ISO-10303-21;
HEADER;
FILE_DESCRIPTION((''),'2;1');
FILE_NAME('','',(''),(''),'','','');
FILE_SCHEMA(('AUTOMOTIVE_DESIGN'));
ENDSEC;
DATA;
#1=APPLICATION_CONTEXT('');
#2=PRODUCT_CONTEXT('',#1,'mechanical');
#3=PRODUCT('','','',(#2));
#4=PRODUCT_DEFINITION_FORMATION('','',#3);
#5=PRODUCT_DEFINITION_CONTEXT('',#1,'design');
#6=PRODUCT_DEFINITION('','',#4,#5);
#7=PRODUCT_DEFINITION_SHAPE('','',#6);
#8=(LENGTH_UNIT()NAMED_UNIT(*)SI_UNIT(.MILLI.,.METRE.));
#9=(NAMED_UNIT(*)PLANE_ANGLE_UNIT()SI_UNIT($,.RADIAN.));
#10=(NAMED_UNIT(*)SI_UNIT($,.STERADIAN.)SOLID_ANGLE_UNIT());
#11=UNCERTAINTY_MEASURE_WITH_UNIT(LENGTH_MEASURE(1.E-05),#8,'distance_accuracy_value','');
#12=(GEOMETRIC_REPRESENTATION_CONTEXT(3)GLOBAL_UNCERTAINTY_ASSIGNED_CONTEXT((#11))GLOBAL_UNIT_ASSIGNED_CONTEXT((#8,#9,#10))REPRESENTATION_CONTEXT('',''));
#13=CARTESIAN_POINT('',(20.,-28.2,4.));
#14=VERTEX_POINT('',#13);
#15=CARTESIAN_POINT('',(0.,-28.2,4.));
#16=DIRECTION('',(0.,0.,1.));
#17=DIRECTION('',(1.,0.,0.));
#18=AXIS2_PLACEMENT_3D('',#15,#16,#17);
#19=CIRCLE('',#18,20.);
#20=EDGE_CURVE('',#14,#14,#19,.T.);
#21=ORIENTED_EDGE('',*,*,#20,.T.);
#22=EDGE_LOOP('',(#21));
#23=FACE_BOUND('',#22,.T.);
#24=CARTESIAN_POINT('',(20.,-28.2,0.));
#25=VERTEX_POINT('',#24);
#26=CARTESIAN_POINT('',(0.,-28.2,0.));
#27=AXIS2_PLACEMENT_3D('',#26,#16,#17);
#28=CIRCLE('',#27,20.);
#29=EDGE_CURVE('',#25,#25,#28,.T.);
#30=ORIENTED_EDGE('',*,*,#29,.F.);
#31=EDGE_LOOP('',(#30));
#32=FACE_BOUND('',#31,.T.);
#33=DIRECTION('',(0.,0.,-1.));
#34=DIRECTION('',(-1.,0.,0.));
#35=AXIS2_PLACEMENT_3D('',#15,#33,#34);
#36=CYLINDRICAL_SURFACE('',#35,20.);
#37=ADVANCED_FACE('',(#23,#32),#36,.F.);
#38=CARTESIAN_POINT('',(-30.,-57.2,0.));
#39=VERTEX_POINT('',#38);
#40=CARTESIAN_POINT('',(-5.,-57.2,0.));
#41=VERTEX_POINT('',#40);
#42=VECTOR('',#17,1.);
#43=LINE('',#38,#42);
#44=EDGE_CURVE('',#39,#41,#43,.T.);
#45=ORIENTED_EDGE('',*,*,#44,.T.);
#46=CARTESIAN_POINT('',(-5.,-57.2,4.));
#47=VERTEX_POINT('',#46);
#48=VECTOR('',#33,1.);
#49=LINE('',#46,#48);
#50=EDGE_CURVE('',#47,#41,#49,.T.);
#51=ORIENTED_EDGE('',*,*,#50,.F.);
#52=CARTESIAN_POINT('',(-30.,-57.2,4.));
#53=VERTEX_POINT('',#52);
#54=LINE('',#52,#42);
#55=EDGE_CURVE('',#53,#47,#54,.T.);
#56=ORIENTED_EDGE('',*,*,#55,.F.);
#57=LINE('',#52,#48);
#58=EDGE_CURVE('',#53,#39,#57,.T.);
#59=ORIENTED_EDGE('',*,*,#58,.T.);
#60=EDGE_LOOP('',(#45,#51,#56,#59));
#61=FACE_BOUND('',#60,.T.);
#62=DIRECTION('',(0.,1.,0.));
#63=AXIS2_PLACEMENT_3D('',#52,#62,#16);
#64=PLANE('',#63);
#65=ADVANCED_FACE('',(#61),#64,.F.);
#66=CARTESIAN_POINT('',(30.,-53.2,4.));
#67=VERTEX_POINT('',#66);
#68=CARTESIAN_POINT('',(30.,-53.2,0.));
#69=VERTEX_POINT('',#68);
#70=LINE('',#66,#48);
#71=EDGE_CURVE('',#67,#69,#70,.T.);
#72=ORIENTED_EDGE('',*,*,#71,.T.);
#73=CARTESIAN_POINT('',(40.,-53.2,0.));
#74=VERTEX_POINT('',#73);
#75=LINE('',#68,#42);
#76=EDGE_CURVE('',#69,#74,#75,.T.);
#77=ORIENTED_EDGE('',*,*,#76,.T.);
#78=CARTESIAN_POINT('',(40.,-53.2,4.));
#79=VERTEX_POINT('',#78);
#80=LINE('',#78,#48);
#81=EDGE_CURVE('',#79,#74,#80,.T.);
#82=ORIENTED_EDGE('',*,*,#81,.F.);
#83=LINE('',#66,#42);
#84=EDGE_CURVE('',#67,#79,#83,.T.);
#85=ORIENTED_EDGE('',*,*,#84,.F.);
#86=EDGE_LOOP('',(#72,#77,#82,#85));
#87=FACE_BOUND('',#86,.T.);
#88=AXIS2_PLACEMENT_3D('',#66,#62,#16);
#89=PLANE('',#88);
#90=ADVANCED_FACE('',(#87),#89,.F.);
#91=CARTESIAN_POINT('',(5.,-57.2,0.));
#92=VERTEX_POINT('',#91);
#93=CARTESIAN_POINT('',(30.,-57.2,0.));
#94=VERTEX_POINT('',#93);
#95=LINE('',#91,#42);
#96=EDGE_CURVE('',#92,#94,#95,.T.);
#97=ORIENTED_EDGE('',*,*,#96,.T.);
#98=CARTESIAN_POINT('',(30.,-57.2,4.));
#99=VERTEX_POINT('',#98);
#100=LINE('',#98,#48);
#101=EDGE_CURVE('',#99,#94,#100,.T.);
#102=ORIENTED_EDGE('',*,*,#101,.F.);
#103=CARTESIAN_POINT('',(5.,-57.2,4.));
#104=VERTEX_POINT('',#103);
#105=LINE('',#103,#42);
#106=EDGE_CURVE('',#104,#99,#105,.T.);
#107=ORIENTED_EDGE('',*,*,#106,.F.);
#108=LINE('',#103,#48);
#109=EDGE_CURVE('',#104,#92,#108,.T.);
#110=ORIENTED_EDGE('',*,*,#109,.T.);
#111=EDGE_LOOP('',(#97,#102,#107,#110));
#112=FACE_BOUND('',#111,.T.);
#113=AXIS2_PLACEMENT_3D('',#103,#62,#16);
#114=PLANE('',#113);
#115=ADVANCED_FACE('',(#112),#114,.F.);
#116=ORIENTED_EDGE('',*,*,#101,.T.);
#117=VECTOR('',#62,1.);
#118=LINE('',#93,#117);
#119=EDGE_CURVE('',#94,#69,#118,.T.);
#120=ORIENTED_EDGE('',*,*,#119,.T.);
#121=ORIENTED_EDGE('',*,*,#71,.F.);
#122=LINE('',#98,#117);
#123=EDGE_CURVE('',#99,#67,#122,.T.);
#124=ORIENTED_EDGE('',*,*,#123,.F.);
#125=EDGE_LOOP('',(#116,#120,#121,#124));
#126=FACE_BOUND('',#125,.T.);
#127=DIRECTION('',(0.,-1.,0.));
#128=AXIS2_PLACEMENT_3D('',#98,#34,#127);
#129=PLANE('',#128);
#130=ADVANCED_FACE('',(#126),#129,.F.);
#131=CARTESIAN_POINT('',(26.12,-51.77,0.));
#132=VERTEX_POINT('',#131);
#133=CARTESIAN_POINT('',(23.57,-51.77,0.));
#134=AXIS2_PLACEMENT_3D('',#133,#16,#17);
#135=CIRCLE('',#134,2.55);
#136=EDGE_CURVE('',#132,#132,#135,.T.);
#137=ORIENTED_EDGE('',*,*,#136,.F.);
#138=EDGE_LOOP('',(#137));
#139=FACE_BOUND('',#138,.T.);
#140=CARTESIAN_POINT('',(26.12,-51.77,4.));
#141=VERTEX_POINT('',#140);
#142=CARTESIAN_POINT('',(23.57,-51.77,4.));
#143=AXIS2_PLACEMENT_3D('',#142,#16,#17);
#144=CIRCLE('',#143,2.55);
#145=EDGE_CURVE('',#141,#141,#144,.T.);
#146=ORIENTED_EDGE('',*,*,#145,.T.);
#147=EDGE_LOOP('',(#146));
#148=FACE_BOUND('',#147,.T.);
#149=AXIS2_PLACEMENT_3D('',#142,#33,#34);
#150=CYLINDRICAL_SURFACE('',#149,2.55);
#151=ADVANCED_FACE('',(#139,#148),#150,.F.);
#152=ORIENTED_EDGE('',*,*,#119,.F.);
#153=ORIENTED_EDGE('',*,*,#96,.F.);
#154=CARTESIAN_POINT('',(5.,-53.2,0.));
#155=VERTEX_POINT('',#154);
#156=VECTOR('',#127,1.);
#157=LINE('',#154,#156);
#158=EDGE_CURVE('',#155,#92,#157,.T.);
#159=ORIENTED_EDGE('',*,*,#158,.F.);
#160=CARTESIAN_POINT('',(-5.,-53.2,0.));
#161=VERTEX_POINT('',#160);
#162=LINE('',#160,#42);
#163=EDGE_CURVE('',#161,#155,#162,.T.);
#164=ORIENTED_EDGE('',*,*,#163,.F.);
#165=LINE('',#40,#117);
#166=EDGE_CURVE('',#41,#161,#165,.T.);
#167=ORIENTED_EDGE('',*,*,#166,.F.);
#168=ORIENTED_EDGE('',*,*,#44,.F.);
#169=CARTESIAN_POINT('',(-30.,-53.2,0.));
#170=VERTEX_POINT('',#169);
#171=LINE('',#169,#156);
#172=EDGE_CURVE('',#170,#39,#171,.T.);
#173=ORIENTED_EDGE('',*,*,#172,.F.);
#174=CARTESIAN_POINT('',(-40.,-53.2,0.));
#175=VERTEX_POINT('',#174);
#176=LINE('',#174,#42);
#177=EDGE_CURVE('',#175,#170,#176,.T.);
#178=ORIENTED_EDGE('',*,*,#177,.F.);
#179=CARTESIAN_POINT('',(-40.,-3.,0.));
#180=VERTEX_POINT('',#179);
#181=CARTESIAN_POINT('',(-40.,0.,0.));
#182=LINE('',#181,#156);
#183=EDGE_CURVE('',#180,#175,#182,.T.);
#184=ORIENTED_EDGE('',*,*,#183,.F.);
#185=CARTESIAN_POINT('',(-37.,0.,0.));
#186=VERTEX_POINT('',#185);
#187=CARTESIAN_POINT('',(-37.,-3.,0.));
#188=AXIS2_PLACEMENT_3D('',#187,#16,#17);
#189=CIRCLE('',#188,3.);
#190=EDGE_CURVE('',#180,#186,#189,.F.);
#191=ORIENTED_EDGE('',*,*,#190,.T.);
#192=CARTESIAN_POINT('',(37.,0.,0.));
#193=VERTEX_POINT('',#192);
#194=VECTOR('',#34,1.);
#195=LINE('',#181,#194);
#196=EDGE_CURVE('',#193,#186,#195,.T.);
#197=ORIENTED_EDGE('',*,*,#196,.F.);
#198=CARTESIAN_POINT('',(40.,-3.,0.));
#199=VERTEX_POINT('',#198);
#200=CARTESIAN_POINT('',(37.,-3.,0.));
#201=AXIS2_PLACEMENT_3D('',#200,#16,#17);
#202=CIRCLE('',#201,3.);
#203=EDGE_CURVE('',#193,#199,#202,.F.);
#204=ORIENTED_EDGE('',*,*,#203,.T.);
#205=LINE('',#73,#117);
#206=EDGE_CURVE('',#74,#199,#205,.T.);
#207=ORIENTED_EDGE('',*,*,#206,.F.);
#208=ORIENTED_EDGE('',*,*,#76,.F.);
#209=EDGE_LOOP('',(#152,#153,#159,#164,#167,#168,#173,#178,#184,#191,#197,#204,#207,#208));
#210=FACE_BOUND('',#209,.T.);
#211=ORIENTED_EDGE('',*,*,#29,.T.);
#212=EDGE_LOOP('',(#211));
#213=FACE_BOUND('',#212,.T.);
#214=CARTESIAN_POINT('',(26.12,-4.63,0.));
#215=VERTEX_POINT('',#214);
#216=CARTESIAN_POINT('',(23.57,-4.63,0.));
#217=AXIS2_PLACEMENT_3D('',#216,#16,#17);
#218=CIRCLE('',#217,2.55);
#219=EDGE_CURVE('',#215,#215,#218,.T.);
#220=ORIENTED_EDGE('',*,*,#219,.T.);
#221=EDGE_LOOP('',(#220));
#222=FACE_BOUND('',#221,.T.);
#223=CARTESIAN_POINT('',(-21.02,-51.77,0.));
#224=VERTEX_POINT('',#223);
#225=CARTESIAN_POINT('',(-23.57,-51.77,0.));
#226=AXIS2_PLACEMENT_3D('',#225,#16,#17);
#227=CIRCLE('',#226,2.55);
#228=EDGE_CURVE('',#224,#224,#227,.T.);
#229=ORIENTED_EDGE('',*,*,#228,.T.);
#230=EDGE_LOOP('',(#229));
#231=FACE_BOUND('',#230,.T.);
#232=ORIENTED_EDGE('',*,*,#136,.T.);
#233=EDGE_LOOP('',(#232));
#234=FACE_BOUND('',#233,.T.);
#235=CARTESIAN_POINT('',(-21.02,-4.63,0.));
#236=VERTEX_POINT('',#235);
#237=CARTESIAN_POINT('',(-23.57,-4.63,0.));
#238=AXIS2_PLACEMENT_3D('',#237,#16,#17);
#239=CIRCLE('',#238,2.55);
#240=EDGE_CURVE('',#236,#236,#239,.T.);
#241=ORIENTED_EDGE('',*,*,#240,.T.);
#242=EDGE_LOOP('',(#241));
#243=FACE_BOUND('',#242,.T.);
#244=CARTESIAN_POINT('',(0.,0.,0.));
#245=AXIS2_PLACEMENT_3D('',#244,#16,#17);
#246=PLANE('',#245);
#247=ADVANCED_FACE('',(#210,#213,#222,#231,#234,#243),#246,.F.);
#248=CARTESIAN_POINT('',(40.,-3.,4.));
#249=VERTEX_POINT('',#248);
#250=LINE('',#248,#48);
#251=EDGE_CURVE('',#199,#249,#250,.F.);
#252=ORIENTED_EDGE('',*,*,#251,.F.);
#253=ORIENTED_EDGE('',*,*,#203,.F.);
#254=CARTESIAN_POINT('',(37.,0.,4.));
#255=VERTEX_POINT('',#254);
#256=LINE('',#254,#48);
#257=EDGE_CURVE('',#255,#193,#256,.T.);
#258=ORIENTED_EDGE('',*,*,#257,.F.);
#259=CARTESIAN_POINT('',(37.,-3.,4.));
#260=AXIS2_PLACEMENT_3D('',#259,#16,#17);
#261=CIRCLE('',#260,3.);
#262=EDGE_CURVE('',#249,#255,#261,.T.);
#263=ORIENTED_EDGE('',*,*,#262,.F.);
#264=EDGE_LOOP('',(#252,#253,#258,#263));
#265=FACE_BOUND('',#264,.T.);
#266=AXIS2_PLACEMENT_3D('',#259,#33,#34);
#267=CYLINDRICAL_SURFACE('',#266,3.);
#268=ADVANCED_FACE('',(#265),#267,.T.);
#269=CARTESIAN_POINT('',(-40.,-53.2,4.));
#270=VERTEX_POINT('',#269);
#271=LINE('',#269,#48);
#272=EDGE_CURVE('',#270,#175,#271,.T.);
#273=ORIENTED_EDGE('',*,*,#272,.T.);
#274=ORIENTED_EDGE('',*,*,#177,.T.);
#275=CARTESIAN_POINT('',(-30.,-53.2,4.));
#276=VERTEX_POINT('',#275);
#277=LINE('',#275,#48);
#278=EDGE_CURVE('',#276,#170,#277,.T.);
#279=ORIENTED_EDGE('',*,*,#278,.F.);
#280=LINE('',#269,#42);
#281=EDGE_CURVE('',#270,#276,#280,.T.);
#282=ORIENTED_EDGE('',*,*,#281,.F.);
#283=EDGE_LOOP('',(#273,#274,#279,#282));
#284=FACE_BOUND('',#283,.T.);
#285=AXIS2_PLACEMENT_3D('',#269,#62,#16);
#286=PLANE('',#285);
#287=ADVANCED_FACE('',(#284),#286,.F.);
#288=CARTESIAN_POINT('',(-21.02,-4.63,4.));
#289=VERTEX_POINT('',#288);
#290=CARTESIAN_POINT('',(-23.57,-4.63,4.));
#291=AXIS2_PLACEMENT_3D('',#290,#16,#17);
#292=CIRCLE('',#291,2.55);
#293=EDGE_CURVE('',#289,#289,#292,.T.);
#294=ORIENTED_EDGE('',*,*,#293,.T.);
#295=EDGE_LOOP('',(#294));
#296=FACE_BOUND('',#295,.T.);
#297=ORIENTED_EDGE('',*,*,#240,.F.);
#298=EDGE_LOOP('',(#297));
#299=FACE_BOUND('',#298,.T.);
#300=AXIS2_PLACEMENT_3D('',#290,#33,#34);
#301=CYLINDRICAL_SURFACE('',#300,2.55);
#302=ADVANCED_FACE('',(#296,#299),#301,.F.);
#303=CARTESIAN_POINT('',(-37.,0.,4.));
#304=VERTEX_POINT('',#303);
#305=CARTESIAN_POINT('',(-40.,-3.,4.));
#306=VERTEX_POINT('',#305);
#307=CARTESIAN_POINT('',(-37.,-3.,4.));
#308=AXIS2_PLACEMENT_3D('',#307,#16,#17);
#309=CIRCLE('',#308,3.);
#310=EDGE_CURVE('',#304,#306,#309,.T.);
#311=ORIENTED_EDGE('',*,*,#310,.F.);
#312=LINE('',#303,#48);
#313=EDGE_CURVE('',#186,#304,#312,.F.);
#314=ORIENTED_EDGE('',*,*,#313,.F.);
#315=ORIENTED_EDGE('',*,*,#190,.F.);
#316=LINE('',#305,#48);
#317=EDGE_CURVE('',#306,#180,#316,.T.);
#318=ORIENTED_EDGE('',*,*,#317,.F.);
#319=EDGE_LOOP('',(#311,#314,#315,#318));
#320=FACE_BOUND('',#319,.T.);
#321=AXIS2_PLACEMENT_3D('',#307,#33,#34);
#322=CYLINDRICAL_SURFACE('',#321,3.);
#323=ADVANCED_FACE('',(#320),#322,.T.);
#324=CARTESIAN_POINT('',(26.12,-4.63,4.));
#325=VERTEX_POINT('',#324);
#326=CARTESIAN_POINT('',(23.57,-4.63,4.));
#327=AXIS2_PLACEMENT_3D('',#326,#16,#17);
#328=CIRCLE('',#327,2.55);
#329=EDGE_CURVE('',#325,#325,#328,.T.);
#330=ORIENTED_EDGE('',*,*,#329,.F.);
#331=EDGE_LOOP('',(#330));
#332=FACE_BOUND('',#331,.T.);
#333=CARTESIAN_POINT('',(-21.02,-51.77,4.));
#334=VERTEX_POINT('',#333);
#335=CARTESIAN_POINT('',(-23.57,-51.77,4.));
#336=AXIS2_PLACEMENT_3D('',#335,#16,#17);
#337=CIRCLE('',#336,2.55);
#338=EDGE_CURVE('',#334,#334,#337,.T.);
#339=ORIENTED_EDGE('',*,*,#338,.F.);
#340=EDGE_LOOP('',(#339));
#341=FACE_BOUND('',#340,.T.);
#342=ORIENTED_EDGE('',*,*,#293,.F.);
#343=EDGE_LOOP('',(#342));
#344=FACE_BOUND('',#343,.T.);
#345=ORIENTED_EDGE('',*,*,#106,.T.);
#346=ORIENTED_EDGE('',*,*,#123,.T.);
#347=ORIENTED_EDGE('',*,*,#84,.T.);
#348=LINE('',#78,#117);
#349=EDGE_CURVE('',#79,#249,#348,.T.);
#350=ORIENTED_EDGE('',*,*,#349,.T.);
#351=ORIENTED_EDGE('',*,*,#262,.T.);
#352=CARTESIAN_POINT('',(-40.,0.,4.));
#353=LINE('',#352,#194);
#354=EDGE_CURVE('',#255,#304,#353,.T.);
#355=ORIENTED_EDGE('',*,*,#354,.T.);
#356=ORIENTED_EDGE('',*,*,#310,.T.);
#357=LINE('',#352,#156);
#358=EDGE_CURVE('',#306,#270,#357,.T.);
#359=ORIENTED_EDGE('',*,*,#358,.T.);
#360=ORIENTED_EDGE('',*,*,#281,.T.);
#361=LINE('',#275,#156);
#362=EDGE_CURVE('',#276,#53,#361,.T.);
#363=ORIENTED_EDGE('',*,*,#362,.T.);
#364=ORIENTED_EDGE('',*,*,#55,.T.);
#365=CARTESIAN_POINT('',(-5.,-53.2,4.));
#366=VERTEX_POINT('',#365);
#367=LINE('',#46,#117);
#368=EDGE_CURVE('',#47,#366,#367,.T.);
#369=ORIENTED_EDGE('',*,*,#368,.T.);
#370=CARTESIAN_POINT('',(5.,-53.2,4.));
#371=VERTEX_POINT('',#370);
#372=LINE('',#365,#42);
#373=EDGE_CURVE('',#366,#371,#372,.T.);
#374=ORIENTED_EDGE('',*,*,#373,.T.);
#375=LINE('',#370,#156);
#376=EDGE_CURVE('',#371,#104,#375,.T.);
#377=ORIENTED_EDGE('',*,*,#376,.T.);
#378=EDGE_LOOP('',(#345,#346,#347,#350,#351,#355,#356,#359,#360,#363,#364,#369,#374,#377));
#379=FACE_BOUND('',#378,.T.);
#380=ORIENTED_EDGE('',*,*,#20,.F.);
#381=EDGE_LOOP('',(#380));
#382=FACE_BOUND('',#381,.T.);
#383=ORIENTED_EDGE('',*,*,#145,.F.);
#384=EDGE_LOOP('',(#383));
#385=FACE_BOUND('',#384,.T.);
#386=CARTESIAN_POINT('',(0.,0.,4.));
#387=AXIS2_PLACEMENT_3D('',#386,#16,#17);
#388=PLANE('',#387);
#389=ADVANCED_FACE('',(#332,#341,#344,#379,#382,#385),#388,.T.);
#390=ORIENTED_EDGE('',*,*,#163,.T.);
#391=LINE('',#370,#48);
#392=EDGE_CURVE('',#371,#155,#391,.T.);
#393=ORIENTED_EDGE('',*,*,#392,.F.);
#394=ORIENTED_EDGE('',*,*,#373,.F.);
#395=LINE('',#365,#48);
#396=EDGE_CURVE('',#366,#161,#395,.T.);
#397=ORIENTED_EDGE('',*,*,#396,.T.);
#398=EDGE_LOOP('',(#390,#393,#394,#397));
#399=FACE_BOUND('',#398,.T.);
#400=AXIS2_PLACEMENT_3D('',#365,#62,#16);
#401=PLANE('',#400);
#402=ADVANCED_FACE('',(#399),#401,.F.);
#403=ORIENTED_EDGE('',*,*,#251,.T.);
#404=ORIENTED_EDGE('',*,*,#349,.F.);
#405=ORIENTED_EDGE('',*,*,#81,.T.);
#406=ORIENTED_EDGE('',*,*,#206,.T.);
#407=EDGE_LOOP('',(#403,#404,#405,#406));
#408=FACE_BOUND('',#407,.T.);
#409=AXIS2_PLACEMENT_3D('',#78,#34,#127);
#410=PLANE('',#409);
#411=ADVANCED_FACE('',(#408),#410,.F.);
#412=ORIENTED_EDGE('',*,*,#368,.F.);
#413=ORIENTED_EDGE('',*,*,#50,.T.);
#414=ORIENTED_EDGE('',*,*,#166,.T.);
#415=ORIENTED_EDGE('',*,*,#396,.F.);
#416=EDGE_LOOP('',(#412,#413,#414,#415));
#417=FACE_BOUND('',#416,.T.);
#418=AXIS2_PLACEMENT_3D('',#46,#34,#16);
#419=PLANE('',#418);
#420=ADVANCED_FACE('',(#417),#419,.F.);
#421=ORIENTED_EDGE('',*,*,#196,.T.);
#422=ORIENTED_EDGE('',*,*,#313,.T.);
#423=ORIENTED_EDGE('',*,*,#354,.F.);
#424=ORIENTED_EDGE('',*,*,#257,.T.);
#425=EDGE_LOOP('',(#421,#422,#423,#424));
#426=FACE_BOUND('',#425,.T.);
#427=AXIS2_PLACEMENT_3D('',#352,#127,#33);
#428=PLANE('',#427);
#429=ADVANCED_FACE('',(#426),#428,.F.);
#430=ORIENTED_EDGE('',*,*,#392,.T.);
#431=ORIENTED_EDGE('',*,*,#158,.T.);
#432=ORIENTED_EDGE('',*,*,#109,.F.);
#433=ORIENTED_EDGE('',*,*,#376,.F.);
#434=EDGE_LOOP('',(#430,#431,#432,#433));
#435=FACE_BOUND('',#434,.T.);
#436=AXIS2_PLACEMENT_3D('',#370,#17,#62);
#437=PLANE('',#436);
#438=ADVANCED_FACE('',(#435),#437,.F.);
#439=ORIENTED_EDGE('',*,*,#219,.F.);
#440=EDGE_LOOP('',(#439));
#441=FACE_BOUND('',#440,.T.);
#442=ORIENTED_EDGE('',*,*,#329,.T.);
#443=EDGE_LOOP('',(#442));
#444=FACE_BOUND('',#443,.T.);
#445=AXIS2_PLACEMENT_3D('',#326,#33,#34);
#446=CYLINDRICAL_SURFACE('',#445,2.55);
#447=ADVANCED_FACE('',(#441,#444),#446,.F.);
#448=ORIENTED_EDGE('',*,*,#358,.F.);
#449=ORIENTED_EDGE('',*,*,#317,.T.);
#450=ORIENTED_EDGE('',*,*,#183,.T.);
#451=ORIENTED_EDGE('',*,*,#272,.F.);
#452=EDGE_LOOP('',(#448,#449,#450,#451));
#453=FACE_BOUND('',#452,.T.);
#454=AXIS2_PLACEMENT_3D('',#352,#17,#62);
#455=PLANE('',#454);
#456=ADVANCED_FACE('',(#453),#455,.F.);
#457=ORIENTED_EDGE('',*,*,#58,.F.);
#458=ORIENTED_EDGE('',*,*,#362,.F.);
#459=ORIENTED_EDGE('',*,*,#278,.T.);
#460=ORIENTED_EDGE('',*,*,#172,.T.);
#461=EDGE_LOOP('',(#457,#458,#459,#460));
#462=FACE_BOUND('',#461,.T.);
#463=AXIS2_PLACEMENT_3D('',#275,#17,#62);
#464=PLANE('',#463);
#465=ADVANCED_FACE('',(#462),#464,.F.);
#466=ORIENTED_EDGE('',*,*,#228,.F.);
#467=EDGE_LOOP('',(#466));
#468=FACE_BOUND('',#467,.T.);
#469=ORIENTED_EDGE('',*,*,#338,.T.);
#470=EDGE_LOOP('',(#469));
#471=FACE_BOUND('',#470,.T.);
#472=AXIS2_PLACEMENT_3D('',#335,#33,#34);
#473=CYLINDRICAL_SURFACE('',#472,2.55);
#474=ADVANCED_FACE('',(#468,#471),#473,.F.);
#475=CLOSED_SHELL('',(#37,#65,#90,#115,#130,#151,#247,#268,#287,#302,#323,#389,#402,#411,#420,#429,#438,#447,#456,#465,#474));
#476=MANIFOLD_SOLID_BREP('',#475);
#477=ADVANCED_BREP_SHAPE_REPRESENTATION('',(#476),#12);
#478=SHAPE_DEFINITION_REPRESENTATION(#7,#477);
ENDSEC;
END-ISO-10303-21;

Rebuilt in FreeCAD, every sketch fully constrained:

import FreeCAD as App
import Part
import Sketcher

V = App.Vector


def edges_at(feature, points):
    """Names of the edges that pass closest to the given points."""
    edges = feature.Shape.Edges
    near = lambda p: min(range(len(edges)), key=lambda i: edges[i].distToShape(Part.Vertex(*p))[0])
    return sorted({f"Edge{near(p) + 1}" for p in points})

doc = App.newDocument("Part")
body = doc.addObject("PartDesign::Body", "Body")

sketch1 = body.newObject("Sketcher::SketchObject", "Sketch")
sketch1.AttachmentSupport = (doc.getObject("XY_Plane"), [""])
sketch1.MapMode = "FlatFace"
sketch1.addGeometry([
    Part.LineSegment(V(40, 0, 0), V(-40, 0, 0)),
    Part.LineSegment(V(-40, 0, 0), V(-40, -53.2, 0)),
    Part.LineSegment(V(-40, -53.2, 0), V(-30, -53.2, 0)),
    Part.LineSegment(V(-30, -53.2, 0), V(-30, -57.2, 0)),
    Part.LineSegment(V(-30, -57.2, 0), V(-5, -57.2, 0)),
    Part.LineSegment(V(-5, -57.2, 0), V(-5, -53.2, 0)),
    Part.LineSegment(V(-5, -53.2, 0), V(5, -53.2, 0)),
    Part.LineSegment(V(5, -53.2, 0), V(5, -57.2, 0)),
    Part.LineSegment(V(5, -57.2, 0), V(30, -57.2, 0)),
    Part.LineSegment(V(30, -57.2, 0), V(30, -53.2, 0)),
    Part.LineSegment(V(30, -53.2, 0), V(40, -53.2, 0)),
    Part.LineSegment(V(40, -53.2, 0), V(40, 0, 0)),
    Part.Circle(V(23.6, -51.8, 0), V(0, 0, 1), 2.5),
    Part.Circle(V(-23.6, -51.8, 0), V(0, 0, 1), 2.5),
    Part.Circle(V(0, -28.2, 0), V(0, 0, 1), 20),
    Part.Circle(V(23.6, -4.6, 0), V(0, 0, 1), 2.5),
    Part.Circle(V(-23.6, -4.6, 0), V(0, 0, 1), 2.5),
], False)
sketch1.addConstraint([
    Sketcher.Constraint("Coincident", 0, 2, 1, 1),
    Sketcher.Constraint("Coincident", 1, 2, 2, 1),
    Sketcher.Constraint("Coincident", 2, 2, 3, 1),
    Sketcher.Constraint("Coincident", 3, 2, 4, 1),
    Sketcher.Constraint("Coincident", 4, 2, 5, 1),
    Sketcher.Constraint("Coincident", 5, 2, 6, 1),
    Sketcher.Constraint("Coincident", 6, 2, 7, 1),
    Sketcher.Constraint("Coincident", 7, 2, 8, 1),
    Sketcher.Constraint("Coincident", 8, 2, 9, 1),
    Sketcher.Constraint("Coincident", 9, 2, 10, 1),
    Sketcher.Constraint("Coincident", 10, 2, 11, 1),
    Sketcher.Constraint("Coincident", 11, 2, 0, 1),
    Sketcher.Constraint("Horizontal", 0),
    Sketcher.Constraint("Vertical", 1),
    Sketcher.Constraint("Horizontal", 2),
    Sketcher.Constraint("Vertical", 3),
    Sketcher.Constraint("Horizontal", 4),
    Sketcher.Constraint("Vertical", 5),
    Sketcher.Constraint("Horizontal", 6),
    Sketcher.Constraint("Vertical", 7),
    Sketcher.Constraint("Horizontal", 8),
    Sketcher.Constraint("Vertical", 9),
    Sketcher.Constraint("Horizontal", 10),
    Sketcher.Constraint("Vertical", 11),
    Sketcher.Constraint("Equal", 12, 13),
    Sketcher.Constraint("Equal", 13, 15),
    Sketcher.Constraint("Equal", 15, 16),
    Sketcher.Constraint("Symmetric", 0, 2, 11, 2, -1, 1),
    Sketcher.Constraint("Symmetric", 12, 3, 13, 3, -2),
    Sketcher.Constraint("Symmetric", 15, 3, 16, 3, -2),
    Sketcher.Constraint("Symmetric", 4, 2, 7, 2, -2),
    Sketcher.Constraint("Symmetric", 2, 2, 9, 2, -2),
    Sketcher.Constraint("PointOnObject", 14, 3, -2),
    Sketcher.Constraint("Horizontal", 2, 2, 5, 2),
    Sketcher.Constraint("Vertical", 12, 3, 15, 3),
    Sketcher.Constraint("Equal", 2, 6),
    Sketcher.Constraint("Diameter", 14, 40.0),
    Sketcher.Constraint("Diameter", 12, 5.1),
    Sketcher.Constraint("DistanceX", 0, 2, 0, 1, 80.0),
    Sketcher.Constraint("DistanceX", 2, 1, 2, 2, 10.0),
    Sketcher.Constraint("DistanceY", 3, 2, 3, 1, 4.0),
    Sketcher.Constraint("DistanceY", 1, 2, 1, 1, 53.2),
    Sketcher.Constraint("DistanceY", 1, 2, 14, 3, 25.0),
    Sketcher.Constraint("DistanceX", -1, 1, 12, 3, 23.57),
    Sketcher.Constraint("DistanceY", 12, 3, -1, 1, 51.77),
    Sketcher.Constraint("DistanceY", 15, 3, -1, 1, 4.63),
])
pad1 = body.newObject("PartDesign::Pad", "Pad")
pad1.Profile = sketch1
pad1.Length = 4
doc.recompute()

fillet = body.newObject("PartDesign::Fillet", "Fillet")
fillet.Base = (pad1, edges_at(pad1, [(-40, 0, 2), (40, 0, 2)]))
fillet.Radius = 3

doc.recompute()
